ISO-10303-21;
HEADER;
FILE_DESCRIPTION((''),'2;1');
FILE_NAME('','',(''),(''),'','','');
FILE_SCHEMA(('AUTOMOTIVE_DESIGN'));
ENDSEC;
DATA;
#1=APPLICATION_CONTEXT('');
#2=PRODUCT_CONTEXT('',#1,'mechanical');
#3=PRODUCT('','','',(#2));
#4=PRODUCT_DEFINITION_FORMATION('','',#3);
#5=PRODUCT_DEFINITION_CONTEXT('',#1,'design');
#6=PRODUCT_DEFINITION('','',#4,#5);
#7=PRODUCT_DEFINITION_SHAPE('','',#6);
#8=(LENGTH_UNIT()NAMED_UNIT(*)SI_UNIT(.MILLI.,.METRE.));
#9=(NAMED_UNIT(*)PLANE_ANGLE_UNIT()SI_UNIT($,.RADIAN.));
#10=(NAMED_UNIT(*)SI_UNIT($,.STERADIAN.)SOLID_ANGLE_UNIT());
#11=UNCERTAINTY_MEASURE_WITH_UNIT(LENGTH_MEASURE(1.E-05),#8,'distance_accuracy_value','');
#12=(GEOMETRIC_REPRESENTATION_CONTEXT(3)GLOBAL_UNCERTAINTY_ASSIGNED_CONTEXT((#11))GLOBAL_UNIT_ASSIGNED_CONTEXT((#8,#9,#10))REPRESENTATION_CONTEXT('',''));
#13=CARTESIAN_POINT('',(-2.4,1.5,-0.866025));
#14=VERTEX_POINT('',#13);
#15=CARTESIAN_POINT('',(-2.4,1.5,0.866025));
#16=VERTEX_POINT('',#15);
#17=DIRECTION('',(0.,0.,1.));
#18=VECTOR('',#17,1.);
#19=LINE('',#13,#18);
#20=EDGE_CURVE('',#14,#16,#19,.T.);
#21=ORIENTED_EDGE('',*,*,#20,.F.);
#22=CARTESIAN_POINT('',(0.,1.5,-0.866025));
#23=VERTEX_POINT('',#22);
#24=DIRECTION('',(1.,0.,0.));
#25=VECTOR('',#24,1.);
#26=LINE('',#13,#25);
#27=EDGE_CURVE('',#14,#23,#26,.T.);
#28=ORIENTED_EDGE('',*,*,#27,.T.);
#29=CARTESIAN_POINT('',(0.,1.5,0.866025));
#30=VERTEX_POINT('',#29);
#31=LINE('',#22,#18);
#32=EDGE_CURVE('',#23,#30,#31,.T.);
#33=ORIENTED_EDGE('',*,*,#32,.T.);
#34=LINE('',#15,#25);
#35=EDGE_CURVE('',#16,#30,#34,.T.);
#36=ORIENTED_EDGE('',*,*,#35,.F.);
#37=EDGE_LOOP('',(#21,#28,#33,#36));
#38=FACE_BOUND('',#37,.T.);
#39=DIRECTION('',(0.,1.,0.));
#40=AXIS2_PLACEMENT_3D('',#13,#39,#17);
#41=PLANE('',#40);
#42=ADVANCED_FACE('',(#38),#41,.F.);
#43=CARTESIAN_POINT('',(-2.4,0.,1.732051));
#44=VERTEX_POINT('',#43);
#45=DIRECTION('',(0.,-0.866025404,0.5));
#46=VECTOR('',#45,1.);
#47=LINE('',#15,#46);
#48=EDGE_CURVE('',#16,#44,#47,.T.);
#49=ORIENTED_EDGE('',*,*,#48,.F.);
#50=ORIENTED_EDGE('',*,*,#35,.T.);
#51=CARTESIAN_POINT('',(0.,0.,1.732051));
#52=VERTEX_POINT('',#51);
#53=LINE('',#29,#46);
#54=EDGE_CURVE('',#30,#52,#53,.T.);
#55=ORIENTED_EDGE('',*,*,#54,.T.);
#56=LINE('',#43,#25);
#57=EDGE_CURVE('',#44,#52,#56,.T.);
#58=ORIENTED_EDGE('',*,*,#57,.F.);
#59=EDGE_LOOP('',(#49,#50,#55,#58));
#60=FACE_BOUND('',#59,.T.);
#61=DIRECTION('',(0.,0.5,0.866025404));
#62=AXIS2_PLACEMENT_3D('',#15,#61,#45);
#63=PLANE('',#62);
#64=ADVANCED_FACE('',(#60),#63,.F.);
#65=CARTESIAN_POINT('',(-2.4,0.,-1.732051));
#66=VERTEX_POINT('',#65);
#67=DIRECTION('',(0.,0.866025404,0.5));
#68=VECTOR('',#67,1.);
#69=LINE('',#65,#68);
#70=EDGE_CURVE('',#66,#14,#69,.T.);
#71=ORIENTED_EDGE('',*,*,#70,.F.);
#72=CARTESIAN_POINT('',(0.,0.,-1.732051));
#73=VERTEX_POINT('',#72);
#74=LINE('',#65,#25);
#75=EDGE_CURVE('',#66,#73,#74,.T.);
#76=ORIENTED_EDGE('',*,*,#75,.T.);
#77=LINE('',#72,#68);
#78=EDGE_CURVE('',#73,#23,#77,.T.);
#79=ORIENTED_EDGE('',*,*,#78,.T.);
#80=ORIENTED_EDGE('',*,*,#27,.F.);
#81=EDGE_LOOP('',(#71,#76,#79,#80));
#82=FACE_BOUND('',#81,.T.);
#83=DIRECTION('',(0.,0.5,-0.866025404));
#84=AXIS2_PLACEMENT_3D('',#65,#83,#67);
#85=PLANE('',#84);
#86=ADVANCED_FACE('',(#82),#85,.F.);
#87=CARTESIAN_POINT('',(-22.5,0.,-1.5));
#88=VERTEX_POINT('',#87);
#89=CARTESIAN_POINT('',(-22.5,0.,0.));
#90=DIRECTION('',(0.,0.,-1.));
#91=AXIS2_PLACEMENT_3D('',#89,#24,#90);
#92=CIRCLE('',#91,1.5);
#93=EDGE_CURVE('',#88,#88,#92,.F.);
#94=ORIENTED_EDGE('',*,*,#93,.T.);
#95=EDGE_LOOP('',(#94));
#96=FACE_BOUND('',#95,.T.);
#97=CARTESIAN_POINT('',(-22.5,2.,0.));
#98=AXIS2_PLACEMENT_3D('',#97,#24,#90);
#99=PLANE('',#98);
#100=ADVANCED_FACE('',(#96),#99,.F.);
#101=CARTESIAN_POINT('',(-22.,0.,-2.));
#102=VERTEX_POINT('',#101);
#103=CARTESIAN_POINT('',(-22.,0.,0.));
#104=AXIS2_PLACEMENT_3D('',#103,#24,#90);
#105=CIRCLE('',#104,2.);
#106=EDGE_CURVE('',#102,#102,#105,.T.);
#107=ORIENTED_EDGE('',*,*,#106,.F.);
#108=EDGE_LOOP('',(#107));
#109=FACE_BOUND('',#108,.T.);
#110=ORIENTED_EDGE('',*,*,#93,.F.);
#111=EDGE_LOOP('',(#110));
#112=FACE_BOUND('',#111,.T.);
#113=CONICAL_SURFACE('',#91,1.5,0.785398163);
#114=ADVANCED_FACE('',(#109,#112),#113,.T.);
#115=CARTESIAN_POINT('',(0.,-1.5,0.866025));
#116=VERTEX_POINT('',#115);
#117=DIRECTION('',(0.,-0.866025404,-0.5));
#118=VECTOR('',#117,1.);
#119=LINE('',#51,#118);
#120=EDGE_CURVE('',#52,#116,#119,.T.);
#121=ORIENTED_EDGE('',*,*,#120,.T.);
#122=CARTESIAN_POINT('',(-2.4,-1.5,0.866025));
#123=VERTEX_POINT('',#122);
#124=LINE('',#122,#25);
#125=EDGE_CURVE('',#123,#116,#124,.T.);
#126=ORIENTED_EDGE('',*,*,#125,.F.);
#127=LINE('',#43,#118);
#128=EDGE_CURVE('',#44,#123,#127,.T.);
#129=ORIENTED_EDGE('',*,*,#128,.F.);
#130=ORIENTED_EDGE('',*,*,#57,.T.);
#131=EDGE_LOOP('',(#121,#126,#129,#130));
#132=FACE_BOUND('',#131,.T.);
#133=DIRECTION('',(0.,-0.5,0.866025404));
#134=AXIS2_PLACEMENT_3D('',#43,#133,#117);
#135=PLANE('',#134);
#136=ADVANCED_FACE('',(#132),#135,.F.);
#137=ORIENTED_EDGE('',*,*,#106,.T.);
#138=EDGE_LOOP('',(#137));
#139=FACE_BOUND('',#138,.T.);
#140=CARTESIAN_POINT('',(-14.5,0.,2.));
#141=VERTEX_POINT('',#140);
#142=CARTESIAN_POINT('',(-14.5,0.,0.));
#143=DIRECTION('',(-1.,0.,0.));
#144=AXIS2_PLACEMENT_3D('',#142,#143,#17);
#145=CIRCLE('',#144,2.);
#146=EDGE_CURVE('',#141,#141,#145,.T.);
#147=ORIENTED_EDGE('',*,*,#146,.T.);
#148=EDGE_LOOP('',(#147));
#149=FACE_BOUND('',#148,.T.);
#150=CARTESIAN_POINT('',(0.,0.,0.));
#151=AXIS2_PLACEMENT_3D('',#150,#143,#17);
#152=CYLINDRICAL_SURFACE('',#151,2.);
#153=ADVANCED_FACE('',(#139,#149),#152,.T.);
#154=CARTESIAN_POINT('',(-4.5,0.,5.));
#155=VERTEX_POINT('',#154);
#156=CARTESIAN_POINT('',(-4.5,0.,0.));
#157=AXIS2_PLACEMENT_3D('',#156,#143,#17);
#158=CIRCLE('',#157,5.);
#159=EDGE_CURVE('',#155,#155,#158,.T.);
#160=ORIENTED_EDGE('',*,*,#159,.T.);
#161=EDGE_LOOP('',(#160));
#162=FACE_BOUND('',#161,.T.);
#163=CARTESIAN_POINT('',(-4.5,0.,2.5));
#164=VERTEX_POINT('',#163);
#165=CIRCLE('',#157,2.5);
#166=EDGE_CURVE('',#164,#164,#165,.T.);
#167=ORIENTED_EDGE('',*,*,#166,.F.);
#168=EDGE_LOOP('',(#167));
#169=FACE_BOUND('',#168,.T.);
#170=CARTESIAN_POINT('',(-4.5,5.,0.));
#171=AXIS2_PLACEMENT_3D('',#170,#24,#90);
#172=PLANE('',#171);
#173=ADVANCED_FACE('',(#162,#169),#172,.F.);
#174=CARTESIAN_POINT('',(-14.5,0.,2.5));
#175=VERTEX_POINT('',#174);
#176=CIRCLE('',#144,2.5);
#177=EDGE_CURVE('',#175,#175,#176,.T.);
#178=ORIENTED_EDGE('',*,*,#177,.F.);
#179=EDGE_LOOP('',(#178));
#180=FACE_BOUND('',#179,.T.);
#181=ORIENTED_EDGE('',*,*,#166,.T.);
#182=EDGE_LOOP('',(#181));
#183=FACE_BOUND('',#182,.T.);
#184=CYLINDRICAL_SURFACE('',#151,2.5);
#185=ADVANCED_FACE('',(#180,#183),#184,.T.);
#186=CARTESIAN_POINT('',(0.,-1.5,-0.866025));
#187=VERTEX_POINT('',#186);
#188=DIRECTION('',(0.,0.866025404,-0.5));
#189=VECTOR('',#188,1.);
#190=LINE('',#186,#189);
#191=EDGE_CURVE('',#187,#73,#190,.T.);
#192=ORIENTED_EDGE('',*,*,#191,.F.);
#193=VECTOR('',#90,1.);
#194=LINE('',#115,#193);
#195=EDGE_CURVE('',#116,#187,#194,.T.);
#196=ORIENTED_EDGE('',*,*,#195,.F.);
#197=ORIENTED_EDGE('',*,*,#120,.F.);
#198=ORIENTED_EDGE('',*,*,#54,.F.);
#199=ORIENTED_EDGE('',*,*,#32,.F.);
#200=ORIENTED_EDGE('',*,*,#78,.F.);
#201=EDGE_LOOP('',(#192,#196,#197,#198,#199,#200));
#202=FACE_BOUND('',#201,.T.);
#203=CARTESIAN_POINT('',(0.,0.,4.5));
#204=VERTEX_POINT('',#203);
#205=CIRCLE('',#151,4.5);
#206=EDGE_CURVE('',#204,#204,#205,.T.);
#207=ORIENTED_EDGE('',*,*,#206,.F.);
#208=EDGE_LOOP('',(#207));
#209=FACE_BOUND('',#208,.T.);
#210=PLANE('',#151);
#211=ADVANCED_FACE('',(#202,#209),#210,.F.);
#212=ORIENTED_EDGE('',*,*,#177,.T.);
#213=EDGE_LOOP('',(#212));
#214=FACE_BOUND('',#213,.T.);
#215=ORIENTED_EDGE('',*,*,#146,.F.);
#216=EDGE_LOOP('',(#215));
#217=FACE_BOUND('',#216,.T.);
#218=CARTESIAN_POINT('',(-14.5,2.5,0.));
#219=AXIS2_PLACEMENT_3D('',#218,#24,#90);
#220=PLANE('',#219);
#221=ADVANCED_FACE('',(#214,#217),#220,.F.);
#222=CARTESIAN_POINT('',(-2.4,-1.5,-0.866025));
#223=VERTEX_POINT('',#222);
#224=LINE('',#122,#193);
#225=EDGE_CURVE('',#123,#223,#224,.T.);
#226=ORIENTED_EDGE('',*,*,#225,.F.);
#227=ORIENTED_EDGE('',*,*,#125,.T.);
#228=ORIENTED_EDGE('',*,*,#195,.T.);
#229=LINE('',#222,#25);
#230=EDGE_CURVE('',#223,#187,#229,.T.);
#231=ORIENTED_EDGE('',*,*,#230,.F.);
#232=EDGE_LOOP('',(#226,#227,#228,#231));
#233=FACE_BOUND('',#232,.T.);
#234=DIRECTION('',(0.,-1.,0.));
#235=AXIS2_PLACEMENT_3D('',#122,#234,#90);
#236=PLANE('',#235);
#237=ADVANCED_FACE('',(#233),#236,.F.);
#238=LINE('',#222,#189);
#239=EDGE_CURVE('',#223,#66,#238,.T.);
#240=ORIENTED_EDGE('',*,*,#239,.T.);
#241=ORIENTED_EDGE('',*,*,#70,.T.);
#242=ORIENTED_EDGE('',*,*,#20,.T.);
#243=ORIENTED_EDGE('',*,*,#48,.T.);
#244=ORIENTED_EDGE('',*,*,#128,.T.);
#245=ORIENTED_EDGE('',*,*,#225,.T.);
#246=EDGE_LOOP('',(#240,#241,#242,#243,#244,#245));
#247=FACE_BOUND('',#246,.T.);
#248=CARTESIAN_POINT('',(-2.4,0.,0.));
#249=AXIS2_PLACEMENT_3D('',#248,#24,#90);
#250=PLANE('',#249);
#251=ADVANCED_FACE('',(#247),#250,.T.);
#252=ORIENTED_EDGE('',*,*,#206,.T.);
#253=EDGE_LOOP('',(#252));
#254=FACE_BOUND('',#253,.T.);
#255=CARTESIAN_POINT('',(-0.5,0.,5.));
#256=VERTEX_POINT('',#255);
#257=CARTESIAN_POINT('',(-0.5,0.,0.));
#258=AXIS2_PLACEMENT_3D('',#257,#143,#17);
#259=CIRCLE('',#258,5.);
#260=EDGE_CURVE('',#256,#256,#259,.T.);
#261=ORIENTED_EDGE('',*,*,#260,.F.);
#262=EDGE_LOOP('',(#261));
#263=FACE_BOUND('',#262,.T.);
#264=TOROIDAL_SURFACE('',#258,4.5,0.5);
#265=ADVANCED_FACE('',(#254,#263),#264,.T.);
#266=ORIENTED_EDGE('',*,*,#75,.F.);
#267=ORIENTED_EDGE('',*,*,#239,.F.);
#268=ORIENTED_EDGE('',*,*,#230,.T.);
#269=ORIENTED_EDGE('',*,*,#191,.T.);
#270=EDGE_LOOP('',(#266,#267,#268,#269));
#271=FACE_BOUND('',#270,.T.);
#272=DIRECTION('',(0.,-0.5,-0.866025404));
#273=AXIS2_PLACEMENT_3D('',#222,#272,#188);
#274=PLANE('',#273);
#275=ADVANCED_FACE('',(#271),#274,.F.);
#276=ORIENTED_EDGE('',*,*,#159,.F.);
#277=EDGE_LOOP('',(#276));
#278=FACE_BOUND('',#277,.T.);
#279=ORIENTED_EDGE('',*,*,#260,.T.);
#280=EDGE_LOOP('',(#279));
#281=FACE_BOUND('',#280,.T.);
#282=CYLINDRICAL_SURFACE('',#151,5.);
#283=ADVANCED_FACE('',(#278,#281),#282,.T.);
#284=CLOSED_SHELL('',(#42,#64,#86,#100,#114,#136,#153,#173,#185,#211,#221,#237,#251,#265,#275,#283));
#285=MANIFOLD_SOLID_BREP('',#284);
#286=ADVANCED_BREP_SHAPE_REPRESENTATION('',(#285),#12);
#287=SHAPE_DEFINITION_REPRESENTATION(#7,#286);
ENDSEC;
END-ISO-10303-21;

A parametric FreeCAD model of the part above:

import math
import FreeCAD as App
import Part
import Sketcher

V = App.Vector
Q = App.Units.Quantity


def edges_at(feature, points):
    """Names of the edges that pass closest to the given points."""
    edges = feature.Shape.Edges
    near = lambda p: min(range(len(edges)), key=lambda i: edges[i].distToShape(Part.Vertex(*p))[0])
    return sorted({f"Edge{near(p) + 1}" for p in points})


def add_polygon(sketch, points):
    """Adds a closed chain of lines whose ends are joined by coincident constraints."""
    first, n = sketch.GeometryCount, len(points)
    for a, b in zip(points, points[1:] + points[:1]):
        sketch.addGeometry(Part.LineSegment(App.Vector(*a, 0), App.Vector(*b, 0)), False)
    for i in range(n):
        sketch.addConstraint(Sketcher.Constraint("Coincident", first + i, 2, first + (i + 1) % n, 1))

doc = App.newDocument("Part")
params = doc.addObject("Spreadsheet::Sheet", "Params")
for row, (alias, value) in enumerate([
    ("sketch1_radius", "0.5 mm"),
    ("sketch1_width", "4 mm"),
    ("sketch1_width2", "10 mm"),
    ("sketch1_width3", "8 mm"),
    ("sketch1_height", "2 mm"),
    ("revolution_angle", "360 deg"),
    ("chamfer_size", "0.5 mm"),
    ("pocket1_length", "2.4 mm"),
], start=1):
    params.set(f"A{row}", alias)
    params.set(f"B{row}", "=" + value)
    params.setAlias(f"B{row}", alias)

body = doc.addObject("PartDesign::Body", "Body")

sketch1 = body.newObject("Sketcher::SketchObject", "Sketch")
sketch1.AttachmentSupport = (doc.getObject("XY_Plane"), [""])
sketch1.MapMode = "FlatFace"
sketch1.addGeometry(Part.LineSegment(V(0, 0, 0), V(0, 4.5, 0)), False)
sketch1.addGeometry(Part.ArcOfCircle(Part.Circle(V(-0.5, 4.5, 0), V(0, 0, 1), 0.5), math.radians(0), math.radians(90)), False)
sketch1.addGeometry(Part.LineSegment(V(-0.5, 5, 0), V(-4.5, 5, 0)), False)
sketch1.addGeometry(Part.LineSegment(V(-4.5, 5, 0), V(-4.5, 2.5, 0)), False)
sketch1.addGeometry(Part.LineSegment(V(-4.5, 2.5, 0), V(-14.5, 2.5, 0)), False)
sketch1.addGeometry(Part.LineSegment(V(-14.5, 2.5, 0), V(-14.5, 2, 0)), False)
sketch1.addGeometry(Part.LineSegment(V(-14.5, 2, 0), V(-22.5, 2, 0)), False)
sketch1.addGeometry(Part.LineSegment(V(-22.5, 2, 0), V(-22.5, 0, 0)), False)
sketch1.addGeometry(Part.LineSegment(V(-22.5, 0, 0), V(0, 0, 0)), False)
sketch1.addConstraint(Sketcher.Constraint("Tangent", 0, 2, 1, 1))
sketch1.addConstraint(Sketcher.Constraint("Tangent", 1, 2, 2, 1))
sketch1.addConstraint(Sketcher.Constraint("Coincident", 2, 2, 3, 1))
sketch1.addConstraint(Sketcher.Constraint("Coincident", 3, 2, 4, 1))
sketch1.addConstraint(Sketcher.Constraint("Coincident", 4, 2, 5, 1))
sketch1.addConstraint(Sketcher.Constraint("Coincident", 5, 2, 6, 1))
sketch1.addConstraint(Sketcher.Constraint("Coincident", 6, 2, 7, 1))
sketch1.addConstraint(Sketcher.Constraint("Coincident", 7, 2, 8, 1))
sketch1.addConstraint(Sketcher.Constraint("Coincident", 8, 2, 0, 1))
sketch1.addConstraint(Sketcher.Constraint("Vertical", 0))
sketch1.addConstraint(Sketcher.Constraint("Horizontal", 2))
sketch1.addConstraint(Sketcher.Constraint("Vertical", 3))
sketch1.addConstraint(Sketcher.Constraint("Horizontal", 4))
sketch1.addConstraint(Sketcher.Constraint("Vertical", 5))
sketch1.addConstraint(Sketcher.Constraint("Horizontal", 6))
sketch1.addConstraint(Sketcher.Constraint("Vertical", 7))
sketch1.addConstraint(Sketcher.Constraint("Horizontal", 8))
sketch1.addConstraint(Sketcher.Constraint("Coincident", 8, 2, -1, 1))
sketch1.addConstraint(Sketcher.Constraint("Radius", 1, 0.5))
sketch1.addConstraint(Sketcher.Constraint("DistanceX", 2, 2, 2, 1, 4.0))
sketch1.addConstraint(Sketcher.Constraint("DistanceX", 4, 2, 4, 1, 10.0))
sketch1.addConstraint(Sketcher.Constraint("DistanceX", 6, 2, 6, 1, 8.0))
sketch1.addConstraint(Sketcher.Constraint("DistanceY", 7, 2, 7, 1, 2.0))
sketch1.addConstraint(Sketcher.Constraint("DistanceY", 0, 1, 0, 2, 4.5))
sketch1.addConstraint(Sketcher.Constraint("DistanceY", 3, 2, 3, 1, 2.5))
sketch1.setExpression("Constraints[18]", "Params.sketch1_radius")
sketch1.setExpression("Constraints[19]", "Params.sketch1_width")
sketch1.setExpression("Constraints[20]", "Params.sketch1_width2")
sketch1.setExpression("Constraints[21]", "Params.sketch1_width3")
sketch1.setExpression("Constraints[22]", "Params.sketch1_height")
revolution = body.newObject("PartDesign::Revolution", "Revolution")
revolution.Profile = sketch1
revolution.ReferenceAxis = (sketch1, ["H_Axis"])
revolution.setExpression("Angle", "Params.revolution_angle")
doc.recompute()

chamfer = body.newObject("PartDesign::Chamfer", "Chamfer")
chamfer.Base = (revolution, edges_at(revolution, [(-22.5, 0, -2)]))
chamfer.setExpression("Size", "Params.chamfer_size")

sketch2 = body.newObject("Sketcher::SketchObject", "Sketch001")
sketch2.AttachmentSupport = (doc.getObject("YZ_Plane"), [""])
sketch2.MapMode = "FlatFace"
add_polygon(sketch2, [(0, -1.7), (1.5, -0.9), (1.5, 0.9), (0, 1.7), (-1.5, 0.9), (-1.5, -0.9)])
sketch2.addConstraint(Sketcher.Constraint("Vertical", 1))
sketch2.addConstraint(Sketcher.Constraint("Vertical", 4))
sketch2.addConstraint(Sketcher.Constraint("Symmetric", 0, 2, 3, 2, -1, 1))
sketch2.addConstraint(Sketcher.Constraint("Symmetric", 2, 2, 5, 2, -1, 1))
sketch2.addConstraint(Sketcher.Constraint("PointOnObject", 2, 2, -2))
sketch2.addConstraint(Sketcher.Constraint("Parallel", 2, 5))
sketch2.addConstraint(Sketcher.Constraint("Horizontal", 1, 2, 3, 2))
sketch2.addConstraint(Sketcher.Constraint("Angle", 0, Q("30 deg")))
sketch2.addConstraint(Sketcher.Constraint("DistanceX", 3, 2, 1, 2, 3.0))
sketch2.addConstraint(Sketcher.Constraint("DistanceY", 1, 1, 1, 2, 1.732051))
pocket1 = body.newObject("PartDesign::Pocket", "Pocket")
pocket1.Profile = sketch2
pocket1.setExpression("Length", "Params.pocket1_length")

doc.recompute()
